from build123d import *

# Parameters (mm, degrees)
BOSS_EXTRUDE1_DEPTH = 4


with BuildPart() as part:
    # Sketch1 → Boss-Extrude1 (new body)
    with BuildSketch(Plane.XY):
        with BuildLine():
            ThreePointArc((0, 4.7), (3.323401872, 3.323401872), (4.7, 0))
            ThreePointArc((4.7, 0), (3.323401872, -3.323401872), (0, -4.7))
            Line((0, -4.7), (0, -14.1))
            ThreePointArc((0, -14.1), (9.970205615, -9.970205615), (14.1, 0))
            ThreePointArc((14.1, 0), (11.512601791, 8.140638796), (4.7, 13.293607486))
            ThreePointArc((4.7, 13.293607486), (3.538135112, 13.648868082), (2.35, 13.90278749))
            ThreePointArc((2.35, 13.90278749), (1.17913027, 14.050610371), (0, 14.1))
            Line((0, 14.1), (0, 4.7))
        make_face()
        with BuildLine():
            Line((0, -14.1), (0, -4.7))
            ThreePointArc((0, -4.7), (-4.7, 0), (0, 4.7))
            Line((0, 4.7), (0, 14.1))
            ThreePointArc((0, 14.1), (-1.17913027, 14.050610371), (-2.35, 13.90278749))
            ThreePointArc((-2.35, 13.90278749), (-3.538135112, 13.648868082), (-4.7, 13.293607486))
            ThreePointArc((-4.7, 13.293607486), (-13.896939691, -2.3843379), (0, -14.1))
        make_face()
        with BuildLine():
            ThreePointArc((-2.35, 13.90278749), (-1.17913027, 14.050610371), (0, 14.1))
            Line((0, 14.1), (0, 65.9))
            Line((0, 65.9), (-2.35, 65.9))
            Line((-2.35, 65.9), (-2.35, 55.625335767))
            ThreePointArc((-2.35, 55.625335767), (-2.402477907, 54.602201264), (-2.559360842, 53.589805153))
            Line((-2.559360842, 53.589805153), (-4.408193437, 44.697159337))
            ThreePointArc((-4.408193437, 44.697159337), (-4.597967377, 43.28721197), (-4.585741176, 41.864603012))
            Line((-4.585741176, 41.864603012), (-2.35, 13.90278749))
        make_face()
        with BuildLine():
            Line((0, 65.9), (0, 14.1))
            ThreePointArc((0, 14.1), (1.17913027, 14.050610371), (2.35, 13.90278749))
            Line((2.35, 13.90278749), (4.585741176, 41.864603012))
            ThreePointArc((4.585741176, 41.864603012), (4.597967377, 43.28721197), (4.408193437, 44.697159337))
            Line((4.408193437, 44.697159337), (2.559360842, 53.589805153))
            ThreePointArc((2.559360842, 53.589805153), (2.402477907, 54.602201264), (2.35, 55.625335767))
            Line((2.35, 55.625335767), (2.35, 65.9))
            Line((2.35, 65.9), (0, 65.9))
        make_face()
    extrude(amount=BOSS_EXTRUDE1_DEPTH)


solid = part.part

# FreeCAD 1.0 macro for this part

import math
import FreeCAD as App
import Part
import Sketcher
from FreeCAD import Vector

doc = App.newDocument("Part")
params = doc.addObject("Spreadsheet::Sheet", "Params")
for row, (alias, value) in enumerate([
    ("sketch1_radius", "10 mm"),
    ("sketch1_radius2", "14.1 mm"),
    ("sketch1_radius3", "4.7 mm"),
    ("sketch1_width", "4.7 mm"),
    ("pad1_length", "4 mm"),
], start=1):
    params.set(f"A{row}", alias)
    params.set(f"B{row}", "=" + value)
    params.setAlias(f"B{row}", alias)

body = doc.addObject("PartDesign::Body", "Body")

# Sketch on XY plane
sketch1 = body.newObject("Sketcher::SketchObject", "Sketch")
sketch1.AttachmentSupport = (doc.getObject("XY_Plane"), [""])
sketch1.MapMode = "FlatFace"
sketch1.addGeometry([
    Part.ArcOfCircle(Part.Circle(Vector(0, 0, 0), Vector(0, 0, 1), 14.1), math.radians(70.53), math.radians(80.41)),  # 0
    Part.LineSegment(Vector(2.4, 13.9, 0), Vector(4.6, 41.9, 0)),  # 1
    Part.ArcOfCircle(Part.Circle(Vector(-5.4, 42.7, 0), Vector(0, 0, 1), 10), math.radians(-4.57), math.radians(11.74)),  # 2
    Part.LineSegment(Vector(4.4, 44.7, 0), Vector(2.6, 53.6, 0)),  # 3
    Part.ArcOfCircle(Part.Circle(Vector(12.3, 55.6, 0), Vector(0, 0, 1), 10), math.radians(180), math.radians(191.74)),  # 4
    Part.LineSegment(Vector(2.4, 55.6, 0), Vector(2.4, 65.9, 0)),  # 5
    Part.LineSegment(Vector(2.4, 65.9, 0), Vector(-2.4, 65.9, 0)),  # 6
    Part.LineSegment(Vector(-2.4, 65.9, 0), Vector(-2.4, 55.6, 0)),  # 7
    Part.ArcOfCircle(Part.Circle(Vector(-12.3, 55.6, 0), Vector(0, 0, 1), 10), math.radians(-11.74), math.radians(0)),  # 8
    Part.LineSegment(Vector(-2.6, 53.6, 0), Vector(-4.4, 44.7, 0)),  # 9
    Part.ArcOfCircle(Part.Circle(Vector(5.4, 42.7, 0), Vector(0, 0, 1), 10), math.radians(168.26), math.radians(184.57)),  # 10
    Part.LineSegment(Vector(-4.6, 41.9, 0), Vector(-2.4, 13.9, 0)),  # 11
    Part.ArcOfCircle(Part.Circle(Vector(0, 0, 0), Vector(0, 0, 1), 14.1), math.radians(99.59), math.radians(109.47)),  # 12
    Part.ArcOfCircle(Part.Circle(Vector(0, 0, 0), Vector(0, 0, 1), 14.1), math.radians(109), math.radians(270)),  # 13
    Part.ArcOfCircle(Part.Circle(Vector(0, 0, 0), Vector(0, 0, 1), 14.1), math.radians(-90), math.radians(0)),  # 14
    Part.ArcOfCircle(Part.Circle(Vector(0, 0, 0), Vector(0, 0, 1), 14.1), math.radians(0), math.radians(71)),  # 15
    Part.ArcOfCircle(Part.Circle(Vector(0, 0, 0), Vector(0, 0, 1), 4.7), math.radians(-90), math.radians(0)),  # 16
    Part.ArcOfCircle(Part.Circle(Vector(0, 0, 0), Vector(0, 0, 1), 4.7), math.radians(90), math.radians(270)),  # 17
    Part.ArcOfCircle(Part.Circle(Vector(0, 0, 0), Vector(0, 0, 1), 4.7), math.radians(0), math.radians(90)),  # 18
], False)
sketch1.addConstraint([
    Sketcher.Constraint("Coincident", 0, 2, 1, 1),
    Sketcher.Constraint("Tangent", 1, 2, 2, 1),
    Sketcher.Constraint("Tangent", 2, 2, 3, 1),
    Sketcher.Constraint("Tangent", 3, 2, 4, 2),
    Sketcher.Constraint("Tangent", 4, 1, 5, 1),
    Sketcher.Constraint("Coincident", 5, 2, 6, 1),
    Sketcher.Constraint("Coincident", 6, 2, 7, 1),
    Sketcher.Constraint("Tangent", 7, 2, 8, 2),
    Sketcher.Constraint("Tangent", 8, 1, 9, 1),
    Sketcher.Constraint("Tangent", 9, 2, 10, 1),
    Sketcher.Constraint("Tangent", 10, 2, 11, 1),
    Sketcher.Constraint("Coincident", 11, 2, 12, 1),
    Sketcher.Constraint("Tangent", 12, 2, 13, 1),
    Sketcher.Constraint("Tangent", 13, 2, 14, 1),
    Sketcher.Constraint("Tangent", 14, 2, 15, 1),
    Sketcher.Constraint("Tangent", 15, 2, 0, 1),
    Sketcher.Constraint("Tangent", 16, 1, 17, 2),
    Sketcher.Constraint("Tangent", 17, 1, 18, 2),
    Sketcher.Constraint("Tangent", 18, 1, 16, 2),
    Sketcher.Constraint("Vertical", 5),
    Sketcher.Constraint("Horizontal", 6),
    Sketcher.Constraint("Vertical", 7),
    Sketcher.Constraint("Coincident", 0, 3, -1, 1),
    Sketcher.Constraint("Coincident", 12, 3, -1, 1),
    Sketcher.Constraint("Coincident", 14, 3, -1, 1),
    Sketcher.Constraint("Coincident", 16, 3, -1, 1),
    Sketcher.Constraint("Equal", 2, 4),
    Sketcher.Constraint("Equal", 4, 8),
    Sketcher.Constraint("Equal", 8, 10),
    Sketcher.Constraint("Symmetric", 4, 3, 8, 3, -2),
    Sketcher.Constraint("Symmetric", 2, 3, 10, 3, -2),
    Sketcher.Constraint("PointOnObject", 13, 2, -2),
    Sketcher.Constraint("PointOnObject", 14, 2, -1),
    Sketcher.Constraint("PointOnObject", 16, 1, -2),
    Sketcher.Constraint("PointOnObject", 17, 1, -2),
    Sketcher.Constraint("PointOnObject", 18, 1, -1),
    Sketcher.Constraint("Horizontal", 1, 2, 10, 2),
    Sketcher.Constraint("Horizontal", 12, 2, 15, 2),
    Sketcher.Constraint("Vertical", 0, 2, 4, 1),
    Sketcher.Constraint("Vertical", 15, 2, 18, 1),
    Sketcher.Constraint("Radius", 2, 10.0),
    Sketcher.Constraint("Radius", 0, 14.1),
    Sketcher.Constraint("Radius", 16, 4.7),
    Sketcher.Constraint("DistanceX", 6, 2, 6, 1, 4.7),
    Sketcher.Constraint("DistanceY", -1, 1, 5, 2, 65.9),
    Sketcher.Constraint("DistanceY", 5, 1, 5, 2, 10.274664),
    Sketcher.Constraint("DistanceY", -1, 1, 2, 3, 42.661629),
    Sketcher.Constraint("DistanceX", -1, 1, 1, 2, 4.585741),
])
sketch1.setExpression("Constraints[40]", "Params.sketch1_radius")
sketch1.setExpression("Constraints[41]", "Params.sketch1_radius2")
sketch1.setExpression("Constraints[42]", "Params.sketch1_radius3")
sketch1.setExpression("Constraints[43]", "Params.sketch1_width")
pad1 = body.newObject("PartDesign::Pad", "Pad")
pad1.Profile = sketch1
pad1.setExpression("Length", "Params.pad1_length")

doc.recompute()
